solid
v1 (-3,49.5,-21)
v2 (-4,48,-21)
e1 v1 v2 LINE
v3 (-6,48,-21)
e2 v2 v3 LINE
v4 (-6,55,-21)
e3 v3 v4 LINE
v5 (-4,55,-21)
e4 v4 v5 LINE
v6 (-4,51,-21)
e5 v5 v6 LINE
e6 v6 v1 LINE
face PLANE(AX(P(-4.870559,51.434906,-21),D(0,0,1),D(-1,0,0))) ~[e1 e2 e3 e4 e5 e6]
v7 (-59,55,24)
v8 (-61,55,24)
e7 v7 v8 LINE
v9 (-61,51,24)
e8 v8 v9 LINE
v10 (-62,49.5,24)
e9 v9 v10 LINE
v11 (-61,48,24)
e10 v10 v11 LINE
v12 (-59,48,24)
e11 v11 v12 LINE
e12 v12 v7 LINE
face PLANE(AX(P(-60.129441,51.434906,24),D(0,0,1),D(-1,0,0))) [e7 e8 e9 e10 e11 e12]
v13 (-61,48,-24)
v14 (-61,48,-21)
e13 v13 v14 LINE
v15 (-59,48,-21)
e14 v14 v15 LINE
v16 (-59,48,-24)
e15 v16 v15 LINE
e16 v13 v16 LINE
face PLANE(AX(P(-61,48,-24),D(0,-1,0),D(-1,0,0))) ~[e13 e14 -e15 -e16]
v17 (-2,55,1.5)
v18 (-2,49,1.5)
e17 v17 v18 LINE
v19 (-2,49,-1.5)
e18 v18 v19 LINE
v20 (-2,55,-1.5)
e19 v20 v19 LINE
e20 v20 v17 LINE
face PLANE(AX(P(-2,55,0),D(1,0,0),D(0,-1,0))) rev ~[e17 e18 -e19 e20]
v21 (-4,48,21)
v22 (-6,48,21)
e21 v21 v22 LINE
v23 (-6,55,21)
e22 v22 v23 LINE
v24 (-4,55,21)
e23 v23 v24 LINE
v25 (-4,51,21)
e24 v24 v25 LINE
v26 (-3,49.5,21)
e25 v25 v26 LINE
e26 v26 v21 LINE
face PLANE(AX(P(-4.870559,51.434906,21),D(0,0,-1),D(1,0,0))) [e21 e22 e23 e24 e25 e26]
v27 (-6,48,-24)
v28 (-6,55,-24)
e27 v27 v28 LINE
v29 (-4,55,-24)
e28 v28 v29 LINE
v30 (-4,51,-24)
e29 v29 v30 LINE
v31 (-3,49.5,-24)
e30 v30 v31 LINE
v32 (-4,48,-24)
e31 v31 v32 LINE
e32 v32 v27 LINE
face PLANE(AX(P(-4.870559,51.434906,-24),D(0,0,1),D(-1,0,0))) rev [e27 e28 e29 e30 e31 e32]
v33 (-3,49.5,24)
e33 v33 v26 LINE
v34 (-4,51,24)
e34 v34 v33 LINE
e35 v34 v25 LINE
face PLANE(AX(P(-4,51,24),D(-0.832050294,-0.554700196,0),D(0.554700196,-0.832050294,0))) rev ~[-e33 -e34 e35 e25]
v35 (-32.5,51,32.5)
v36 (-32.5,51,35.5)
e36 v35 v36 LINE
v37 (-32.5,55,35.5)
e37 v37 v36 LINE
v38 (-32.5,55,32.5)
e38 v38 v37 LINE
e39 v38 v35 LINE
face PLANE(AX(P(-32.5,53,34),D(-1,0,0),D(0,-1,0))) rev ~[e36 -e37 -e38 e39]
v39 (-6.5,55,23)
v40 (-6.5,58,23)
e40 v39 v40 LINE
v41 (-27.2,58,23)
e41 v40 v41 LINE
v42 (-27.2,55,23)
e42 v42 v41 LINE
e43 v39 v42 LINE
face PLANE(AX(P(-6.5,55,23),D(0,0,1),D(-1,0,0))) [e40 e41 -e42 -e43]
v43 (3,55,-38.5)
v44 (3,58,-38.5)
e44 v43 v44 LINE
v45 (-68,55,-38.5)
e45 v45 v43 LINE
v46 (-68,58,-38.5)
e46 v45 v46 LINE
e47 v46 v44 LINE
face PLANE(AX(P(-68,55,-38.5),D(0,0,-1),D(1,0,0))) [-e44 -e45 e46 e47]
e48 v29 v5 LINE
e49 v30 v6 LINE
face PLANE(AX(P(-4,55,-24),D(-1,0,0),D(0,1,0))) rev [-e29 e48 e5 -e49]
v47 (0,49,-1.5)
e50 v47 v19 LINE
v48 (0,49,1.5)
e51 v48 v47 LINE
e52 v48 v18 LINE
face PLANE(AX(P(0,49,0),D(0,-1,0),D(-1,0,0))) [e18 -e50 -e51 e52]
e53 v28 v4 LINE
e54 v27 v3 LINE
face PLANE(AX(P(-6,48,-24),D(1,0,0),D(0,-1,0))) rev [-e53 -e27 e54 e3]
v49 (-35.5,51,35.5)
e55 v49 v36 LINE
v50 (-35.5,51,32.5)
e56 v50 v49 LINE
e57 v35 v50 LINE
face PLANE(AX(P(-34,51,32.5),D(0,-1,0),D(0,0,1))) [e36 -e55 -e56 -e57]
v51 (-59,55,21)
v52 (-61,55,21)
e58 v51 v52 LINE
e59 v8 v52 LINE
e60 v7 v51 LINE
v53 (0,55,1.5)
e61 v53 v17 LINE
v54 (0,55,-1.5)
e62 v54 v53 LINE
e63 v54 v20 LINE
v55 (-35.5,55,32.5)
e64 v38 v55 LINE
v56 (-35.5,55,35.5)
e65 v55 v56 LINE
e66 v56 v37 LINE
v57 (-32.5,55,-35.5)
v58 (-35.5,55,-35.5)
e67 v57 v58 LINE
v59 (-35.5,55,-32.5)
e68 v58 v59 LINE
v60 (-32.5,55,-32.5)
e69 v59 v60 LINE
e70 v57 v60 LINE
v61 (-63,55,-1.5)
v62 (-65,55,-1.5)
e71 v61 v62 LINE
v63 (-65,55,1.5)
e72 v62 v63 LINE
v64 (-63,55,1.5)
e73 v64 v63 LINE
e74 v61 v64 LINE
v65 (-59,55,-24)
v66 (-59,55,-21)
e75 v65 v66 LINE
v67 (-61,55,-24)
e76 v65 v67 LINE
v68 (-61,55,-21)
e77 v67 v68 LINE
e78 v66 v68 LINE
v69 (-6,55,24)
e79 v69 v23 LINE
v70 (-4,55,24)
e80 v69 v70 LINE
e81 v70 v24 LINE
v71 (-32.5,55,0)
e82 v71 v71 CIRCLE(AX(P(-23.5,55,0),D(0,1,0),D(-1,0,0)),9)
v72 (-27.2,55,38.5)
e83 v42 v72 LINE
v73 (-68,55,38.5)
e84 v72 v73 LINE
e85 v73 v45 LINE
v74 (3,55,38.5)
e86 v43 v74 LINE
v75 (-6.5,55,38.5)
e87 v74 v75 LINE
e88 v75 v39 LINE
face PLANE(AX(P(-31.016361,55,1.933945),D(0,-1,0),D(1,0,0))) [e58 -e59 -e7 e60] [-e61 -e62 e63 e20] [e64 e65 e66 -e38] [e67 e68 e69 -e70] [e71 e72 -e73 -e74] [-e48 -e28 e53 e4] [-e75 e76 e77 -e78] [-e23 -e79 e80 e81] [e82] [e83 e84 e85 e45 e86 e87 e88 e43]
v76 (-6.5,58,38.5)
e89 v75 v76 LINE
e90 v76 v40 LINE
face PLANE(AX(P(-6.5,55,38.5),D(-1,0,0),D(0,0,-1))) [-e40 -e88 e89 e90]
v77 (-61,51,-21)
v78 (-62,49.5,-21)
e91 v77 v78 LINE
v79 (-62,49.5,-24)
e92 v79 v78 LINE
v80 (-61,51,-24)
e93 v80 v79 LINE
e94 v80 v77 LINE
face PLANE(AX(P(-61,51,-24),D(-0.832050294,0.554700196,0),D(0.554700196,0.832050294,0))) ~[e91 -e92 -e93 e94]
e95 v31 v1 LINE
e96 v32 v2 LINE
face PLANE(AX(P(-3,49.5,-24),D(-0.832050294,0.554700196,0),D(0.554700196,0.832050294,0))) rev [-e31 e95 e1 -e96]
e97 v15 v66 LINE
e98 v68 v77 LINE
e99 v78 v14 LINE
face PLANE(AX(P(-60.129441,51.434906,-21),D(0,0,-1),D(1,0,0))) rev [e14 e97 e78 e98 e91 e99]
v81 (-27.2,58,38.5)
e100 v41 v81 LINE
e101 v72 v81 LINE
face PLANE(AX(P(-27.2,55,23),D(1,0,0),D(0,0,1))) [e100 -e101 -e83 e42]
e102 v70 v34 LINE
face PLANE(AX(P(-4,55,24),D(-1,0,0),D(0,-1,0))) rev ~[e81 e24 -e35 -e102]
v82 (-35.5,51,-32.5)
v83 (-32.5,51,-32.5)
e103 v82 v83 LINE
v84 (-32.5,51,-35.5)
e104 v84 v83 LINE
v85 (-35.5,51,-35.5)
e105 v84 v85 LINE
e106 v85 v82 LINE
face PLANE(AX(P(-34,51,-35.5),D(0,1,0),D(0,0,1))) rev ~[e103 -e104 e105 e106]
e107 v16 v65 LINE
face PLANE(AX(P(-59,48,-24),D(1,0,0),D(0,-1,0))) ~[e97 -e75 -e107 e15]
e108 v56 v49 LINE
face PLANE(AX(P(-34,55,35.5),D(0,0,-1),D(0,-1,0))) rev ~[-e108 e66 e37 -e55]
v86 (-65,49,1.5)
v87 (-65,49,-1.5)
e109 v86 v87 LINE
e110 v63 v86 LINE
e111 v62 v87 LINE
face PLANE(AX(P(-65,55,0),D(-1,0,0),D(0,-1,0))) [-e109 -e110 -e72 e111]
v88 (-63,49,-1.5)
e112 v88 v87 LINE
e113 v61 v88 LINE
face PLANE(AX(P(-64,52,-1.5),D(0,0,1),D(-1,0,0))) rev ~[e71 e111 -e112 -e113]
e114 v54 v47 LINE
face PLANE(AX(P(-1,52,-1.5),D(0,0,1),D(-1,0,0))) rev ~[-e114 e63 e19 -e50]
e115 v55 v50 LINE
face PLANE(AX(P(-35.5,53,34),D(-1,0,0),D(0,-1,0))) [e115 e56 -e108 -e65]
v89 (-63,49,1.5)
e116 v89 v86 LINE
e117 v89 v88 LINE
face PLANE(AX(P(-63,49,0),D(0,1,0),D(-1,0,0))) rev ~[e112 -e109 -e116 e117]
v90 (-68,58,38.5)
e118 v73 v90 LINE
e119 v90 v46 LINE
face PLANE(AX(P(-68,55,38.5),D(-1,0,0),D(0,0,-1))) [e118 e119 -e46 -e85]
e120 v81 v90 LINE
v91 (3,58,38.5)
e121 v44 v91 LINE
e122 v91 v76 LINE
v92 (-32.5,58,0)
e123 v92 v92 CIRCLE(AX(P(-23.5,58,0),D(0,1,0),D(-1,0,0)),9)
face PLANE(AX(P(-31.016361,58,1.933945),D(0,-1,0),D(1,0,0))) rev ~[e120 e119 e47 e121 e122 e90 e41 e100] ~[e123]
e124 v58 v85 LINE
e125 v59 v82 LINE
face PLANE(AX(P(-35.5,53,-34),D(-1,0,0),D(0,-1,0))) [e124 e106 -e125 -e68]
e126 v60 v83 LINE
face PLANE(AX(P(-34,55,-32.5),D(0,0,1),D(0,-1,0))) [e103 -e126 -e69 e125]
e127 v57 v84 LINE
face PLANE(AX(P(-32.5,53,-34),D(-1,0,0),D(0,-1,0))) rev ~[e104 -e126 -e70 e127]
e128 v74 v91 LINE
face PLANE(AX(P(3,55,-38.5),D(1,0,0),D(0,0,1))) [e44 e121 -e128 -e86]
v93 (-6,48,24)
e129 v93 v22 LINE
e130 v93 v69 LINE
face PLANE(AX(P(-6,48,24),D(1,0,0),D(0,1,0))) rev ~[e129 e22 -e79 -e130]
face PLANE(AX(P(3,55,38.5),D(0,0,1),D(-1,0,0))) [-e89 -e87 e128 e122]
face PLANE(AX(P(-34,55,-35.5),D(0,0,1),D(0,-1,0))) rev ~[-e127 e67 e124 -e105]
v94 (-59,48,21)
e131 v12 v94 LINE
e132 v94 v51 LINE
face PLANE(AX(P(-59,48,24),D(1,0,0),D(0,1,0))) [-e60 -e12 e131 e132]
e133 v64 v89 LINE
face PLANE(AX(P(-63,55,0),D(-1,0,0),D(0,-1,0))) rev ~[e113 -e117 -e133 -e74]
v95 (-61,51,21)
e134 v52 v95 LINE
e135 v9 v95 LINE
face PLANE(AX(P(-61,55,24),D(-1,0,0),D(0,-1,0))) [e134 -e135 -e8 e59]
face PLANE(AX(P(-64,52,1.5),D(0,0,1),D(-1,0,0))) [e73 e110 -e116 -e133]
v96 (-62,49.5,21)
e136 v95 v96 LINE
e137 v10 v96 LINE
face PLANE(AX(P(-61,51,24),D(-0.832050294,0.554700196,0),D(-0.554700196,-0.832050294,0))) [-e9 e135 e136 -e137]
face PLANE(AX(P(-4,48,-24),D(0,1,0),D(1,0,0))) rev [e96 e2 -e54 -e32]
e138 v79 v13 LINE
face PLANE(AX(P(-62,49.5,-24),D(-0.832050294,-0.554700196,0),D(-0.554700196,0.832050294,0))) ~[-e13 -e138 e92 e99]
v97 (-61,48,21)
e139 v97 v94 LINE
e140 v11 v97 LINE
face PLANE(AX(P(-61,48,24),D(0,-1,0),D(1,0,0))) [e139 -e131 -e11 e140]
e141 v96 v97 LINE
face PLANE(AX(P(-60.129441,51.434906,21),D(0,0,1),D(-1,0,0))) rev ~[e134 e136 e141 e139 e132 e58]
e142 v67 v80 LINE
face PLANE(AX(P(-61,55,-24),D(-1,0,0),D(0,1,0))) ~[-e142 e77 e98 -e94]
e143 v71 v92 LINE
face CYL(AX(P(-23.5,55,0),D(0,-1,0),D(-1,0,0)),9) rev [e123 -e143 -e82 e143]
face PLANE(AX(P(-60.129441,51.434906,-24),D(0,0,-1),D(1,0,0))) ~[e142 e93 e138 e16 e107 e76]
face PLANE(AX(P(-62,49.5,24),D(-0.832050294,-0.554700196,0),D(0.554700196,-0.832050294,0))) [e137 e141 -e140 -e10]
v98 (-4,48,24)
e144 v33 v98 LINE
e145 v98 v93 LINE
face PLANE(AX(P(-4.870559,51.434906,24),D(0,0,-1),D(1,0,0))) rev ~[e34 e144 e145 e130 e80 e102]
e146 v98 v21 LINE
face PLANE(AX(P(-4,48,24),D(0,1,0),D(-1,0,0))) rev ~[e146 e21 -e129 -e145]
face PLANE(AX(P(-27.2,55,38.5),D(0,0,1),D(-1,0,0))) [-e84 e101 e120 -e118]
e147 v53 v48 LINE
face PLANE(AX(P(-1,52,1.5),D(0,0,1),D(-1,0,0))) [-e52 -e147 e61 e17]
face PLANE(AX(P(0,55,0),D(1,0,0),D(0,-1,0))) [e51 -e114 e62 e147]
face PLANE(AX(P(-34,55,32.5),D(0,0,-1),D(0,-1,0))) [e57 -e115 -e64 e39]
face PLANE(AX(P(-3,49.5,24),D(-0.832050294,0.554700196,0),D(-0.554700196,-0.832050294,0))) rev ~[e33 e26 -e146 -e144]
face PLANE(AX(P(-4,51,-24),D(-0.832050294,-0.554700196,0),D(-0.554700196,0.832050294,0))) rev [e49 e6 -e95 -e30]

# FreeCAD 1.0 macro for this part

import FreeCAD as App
import Part
import Sketcher
Q = App.Units.Quantity

doc = App.newDocument("Part")
body = doc.addObject("PartDesign::Body", "Body")

# Sketch on XZ plane
sketch1 = body.newObject("Sketcher::SketchObject", "Sketch")
sketch1.AttachmentSupport = (doc.getObject("XZ_Plane"), [""])
sketch1.MapMode = "FlatFace"
sketch1.addGeometry(Part.LineSegment(App.Vector(68, -38.5, 0), App.Vector(68, 38.5, 0)), False)
sketch1.addGeometry(Part.LineSegment(App.Vector(68, 38.5, 0), App.Vector(27.2, 38.5, 0)), False)
sketch1.addGeometry(Part.LineSegment(App.Vector(27.2, 38.5, 0), App.Vector(27.2, 23, 0)), False)
sketch1.addGeometry(Part.LineSegment(App.Vector(27.2, 23, 0), App.Vector(6.5, 23, 0)), False)
sketch1.addGeometry(Part.LineSegment(App.Vector(6.5, 23, 0), App.Vector(6.5, 38.5, 0)), False)
sketch1.addGeometry(Part.LineSegment(App.Vector(6.5, 38.5, 0), App.Vector(-3, 38.5, 0)), False)
sketch1.addGeometry(Part.LineSegment(App.Vector(-3, 38.5, 0), App.Vector(-3, -38.5, 0)), False)
sketch1.addGeometry(Part.LineSegment(App.Vector(-3, -38.5, 0), App.Vector(68, -38.5, 0)), False)
sketch1.addGeometry(Part.Circle(App.Vector(23.5, 0, 0), App.Vector(0, 0, 1), 9), False)
sketch1.addConstraint(Sketcher.Constraint("Coincident", 0, 2, 1, 1))
sketch1.addConstraint(Sketcher.Constraint("Coincident", 1, 2, 2, 1))
sketch1.addConstraint(Sketcher.Constraint("Coincident", 2, 2, 3, 1))
sketch1.addConstraint(Sketcher.Constraint("Coincident", 3, 2, 4, 1))
sketch1.addConstraint(Sketcher.Constraint("Coincident", 4, 2, 5, 1))
sketch1.addConstraint(Sketcher.Constraint("Coincident", 5, 2, 6, 1))
sketch1.addConstraint(Sketcher.Constraint("Coincident", 6, 2, 7, 1))
sketch1.addConstraint(Sketcher.Constraint("Coincident", 7, 2, 0, 1))
sketch1.addConstraint(Sketcher.Constraint("Vertical", 0))
sketch1.addConstraint(Sketcher.Constraint("Horizontal", 1))
sketch1.addConstraint(Sketcher.Constraint("Vertical", 2))
sketch1.addConstraint(Sketcher.Constraint("Horizontal", 3))
sketch1.addConstraint(Sketcher.Constraint("Vertical", 4))
sketch1.addConstraint(Sketcher.Constraint("Horizontal", 5))
sketch1.addConstraint(Sketcher.Constraint("Vertical", 6))
sketch1.addConstraint(Sketcher.Constraint("Horizontal", 7))
sketch1.addConstraint(Sketcher.Constraint("PointOnObject", 8, 3, -1))
sketch1.addConstraint(Sketcher.Constraint("Horizontal", 1, 2, 4, 2))
sketch1.addConstraint(Sketcher.Constraint("Diameter", 8, Q("18 mm")))
sketch1.addConstraint(Sketcher.Constraint("DistanceX", 7, 1, 7, 2, Q("71 mm")))
sketch1.addConstraint(Sketcher.Constraint("DistanceY", 0, 1, 0, 2, Q("77 mm")))
sketch1.addConstraint(Sketcher.Constraint("DistanceX", 1, 2, 1, 1, Q("40.8 mm")))
sketch1.addConstraint(Sketcher.Constraint("DistanceX", 3, 2, 3, 1, Q("20.7 mm")))
sketch1.addConstraint(Sketcher.Constraint("DistanceY", 2, 2, 2, 1, Q("15.5 mm")))
sketch1.addConstraint(Sketcher.Constraint("DistanceX", -1, 1, 0, 2, Q("68 mm")))
sketch1.addConstraint(Sketcher.Constraint("DistanceY", -1, 1, 2, 2, Q("23 mm")))
sketch1.addConstraint(Sketcher.Constraint("DistanceX", 3, 2, 8, 3, Q("17 mm")))
pad1 = body.newObject("PartDesign::Pad", "Pad")
pad1.Profile = sketch1
pad1.Length = 3

# Sketch on XY plane
sketch2 = body.newObject("Sketcher::SketchObject", "Sketch001")
sketch2.AttachmentSupport = (doc.getObject("XY_Plane"), [""])
sketch2.MapMode = "FlatFace"
sketch2.AttachmentOffset = App.Placement(App.Vector(0, 0, 24), App.Rotation())
sketch2.addGeometry(Part.LineSegment(App.Vector(61, 0, 0), App.Vector(61, 4, 0)), False)
sketch2.addGeometry(Part.LineSegment(App.Vector(61, 4, 0), App.Vector(62, 5.5, 0)), False)
sketch2.addGeometry(Part.LineSegment(App.Vector(62, 5.5, 0), App.Vector(61, 7, 0)), False)
sketch2.addGeometry(Part.LineSegment(App.Vector(61, 7, 0), App.Vector(59, 7, 0)), False)
sketch2.addGeometry(Part.LineSegment(App.Vector(59, 7, 0), App.Vector(59, 0, 0)), False)
sketch2.addGeometry(Part.LineSegment(App.Vector(59, 0, 0), App.Vector(61, 0, 0)), False)
sketch2.addGeometry(Part.LineSegment(App.Vector(4, 4, 0), App.Vector(4, 0, 0)), False)
sketch2.addGeometry(Part.LineSegment(App.Vector(4, 0, 0), App.Vector(6, 0, 0)), False)
sketch2.addGeometry(Part.LineSegment(App.Vector(6, 0, 0), App.Vector(6, 7, 0)), False)
sketch2.addGeometry(Part.LineSegment(App.Vector(6, 7, 0), App.Vector(4, 7, 0)), False)
sketch2.addGeometry(Part.LineSegment(App.Vector(4, 7, 0), App.Vector(3, 5.5, 0)), False)
sketch2.addGeometry(Part.LineSegment(App.Vector(3, 5.5, 0), App.Vector(4, 4, 0)), False)
sketch2.addConstraint(Sketcher.Constraint("Coincident", 0, 2, 1, 1))
sketch2.addConstraint(Sketcher.Constraint("Coincident", 1, 2, 2, 1))
sketch2.addConstraint(Sketcher.Constraint("Coincident", 2, 2, 3, 1))
sketch2.addConstraint(Sketcher.Constraint("Coincident", 3, 2, 4, 1))
sketch2.addConstraint(Sketcher.Constraint("Coincident", 4, 2, 5, 1))
sketch2.addConstraint(Sketcher.Constraint("Coincident", 5, 2, 0, 1))
sketch2.addConstraint(Sketcher.Constraint("Coincident", 6, 2, 7, 1))
sketch2.addConstraint(Sketcher.Constraint("Coincident", 7, 2, 8, 1))
sketch2.addConstraint(Sketcher.Constraint("Coincident", 8, 2, 9, 1))
sketch2.addConstraint(Sketcher.Constraint("Coincident", 9, 2, 10, 1))
sketch2.addConstraint(Sketcher.Constraint("Coincident", 10, 2, 11, 1))
sketch2.addConstraint(Sketcher.Constraint("Coincident", 11, 2, 6, 1))
sketch2.addConstraint(Sketcher.Constraint("Vertical", 0))
sketch2.addConstraint(Sketcher.Constraint("Horizontal", 3))
sketch2.addConstraint(Sketcher.Constraint("Vertical", 4))
sketch2.addConstraint(Sketcher.Constraint("Horizontal", 5))
sketch2.addConstraint(Sketcher.Constraint("Vertical", 6))
sketch2.addConstraint(Sketcher.Constraint("Horizontal", 7))
sketch2.addConstraint(Sketcher.Constraint("Vertical", 8))
sketch2.addConstraint(Sketcher.Constraint("Horizontal", 9))
sketch2.addConstraint(Sketcher.Constraint("PointOnObject", 4, 2, -1))
sketch2.addConstraint(Sketcher.Constraint("PointOnObject", 6, 2, -1))
sketch2.addConstraint(Sketcher.Constraint("Parallel", 1, 10))
sketch2.addConstraint(Sketcher.Constraint("Parallel", 2, 11))
sketch2.addConstraint(Sketcher.Constraint("Horizontal", 3, 2, 8, 2))
sketch2.addConstraint(Sketcher.Constraint("Horizontal", 1, 2, 10, 2))
sketch2.addConstraint(Sketcher.Constraint("Horizontal", 0, 2, 11, 2))
sketch2.addConstraint(Sketcher.Constraint("Vertical", 0, 2, 2, 2))
sketch2.addConstraint(Sketcher.Constraint("Vertical", 6, 2, 9, 2))
sketch2.addConstraint(Sketcher.Constraint("Equal", 5, 7))
sketch2.addConstraint(Sketcher.Constraint("DistanceX", 3, 2, 3, 1, Q("2 mm")))
sketch2.addConstraint(Sketcher.Constraint("DistanceY", 0, 1, 0, 2, Q("4 mm")))
sketch2.addConstraint(Sketcher.Constraint("DistanceY", 4, 2, 4, 1, Q("7 mm")))
sketch2.addConstraint(Sketcher.Constraint("DistanceX", -1, 1, 0, 2, Q("61 mm")))
sketch2.addConstraint(Sketcher.Constraint("DistanceX", -1, 1, 1, 2, Q("62 mm")))
sketch2.addConstraint(Sketcher.Constraint("DistanceX", -1, 1, 6, 2, Q("4 mm")))
pad2 = body.newObject("PartDesign::Pad", "Pad001")
pad2.Profile = sketch2
pad2.Length = 3
pad2.Reversed = True
doc.recompute()

mirrored = body.newObject("PartDesign::Mirrored", "Mirrored")
mirrored.Originals = [pad2]
mirrored.MirrorPlane = (doc.getObject("XY_Plane"), [""])
body.Tip = mirrored

# Sketch on XY plane
sketch3 = body.newObject("Sketcher::SketchObject", "Sketch002")
sketch3.AttachmentSupport = (doc.getObject("XY_Plane"), [""])
sketch3.MapMode = "FlatFace"
sketch3.addGeometry(Part.LineSegment(App.Vector(0, 6, 0), App.Vector(0, 0, 0)), False)
sketch3.addGeometry(Part.LineSegment(App.Vector(0, 0, 0), App.Vector(2, 0, 0)), False)
sketch3.addGeometry(Part.LineSegment(App.Vector(2, 0, 0), App.Vector(2, 6, 0)), False)
sketch3.addGeometry(Part.LineSegment(App.Vector(2, 6, 0), App.Vector(0, 6, 0)), False)
sketch3.addGeometry(Part.LineSegment(App.Vector(63, 6, 0), App.Vector(63, 0, 0)), False)
sketch3.addGeometry(Part.LineSegment(App.Vector(63, 0, 0), App.Vector(65, 0, 0)), False)
sketch3.addGeometry(Part.LineSegment(App.Vector(65, 0, 0), App.Vector(65, 6, 0)), False)
sketch3.addGeometry(Part.LineSegment(App.Vector(65, 6, 0), App.Vector(63, 6, 0)), False)
sketch3.addConstraint(Sketcher.Constraint("Coincident", 0, 2, 1, 1))
sketch3.addConstraint(Sketcher.Constraint("Coincident", 1, 2, 2, 1))
sketch3.addConstraint(Sketcher.Constraint("Coincident", 2, 2, 3, 1))
sketch3.addConstraint(Sketcher.Constraint("Coincident", 3, 2, 0, 1))
sketch3.addConstraint(Sketcher.Constraint("Coincident", 4, 2, 5, 1))
sketch3.addConstraint(Sketcher.Constraint("Coincident", 5, 2, 6, 1))
sketch3.addConstraint(Sketcher.Constraint("Coincident", 6, 2, 7, 1))
sketch3.addConstraint(Sketcher.Constraint("Coincident", 7, 2, 4, 1))
sketch3.addConstraint(Sketcher.Constraint("Vertical", 0))
sketch3.addConstraint(Sketcher.Constraint("Horizontal", 1))
sketch3.addConstraint(Sketcher.Constraint("Vertical", 2))
sketch3.addConstraint(Sketcher.Constraint("Horizontal", 3))
sketch3.addConstraint(Sketcher.Constraint("Vertical", 4))
sketch3.addConstraint(Sketcher.Constraint("Horizontal", 5))
sketch3.addConstraint(Sketcher.Constraint("Vertical", 6))
sketch3.addConstraint(Sketcher.Constraint("Horizontal", 7))
sketch3.addConstraint(Sketcher.Constraint("Coincident", 0, 2, -1, 1))
sketch3.addConstraint(Sketcher.Constraint("PointOnObject", 4, 2, -1))
sketch3.addConstraint(Sketcher.Constraint("Horizontal", 3, 2, 6, 2))
sketch3.addConstraint(Sketcher.Constraint("Equal", 3, 5))
sketch3.addConstraint(Sketcher.Constraint("DistanceX", 1, 1, 1, 2, Q("2 mm")))
sketch3.addConstraint(Sketcher.Constraint("DistanceY", 0, 2, 0, 1, Q("6 mm")))
sketch3.addConstraint(Sketcher.Constraint("DistanceX", -1, 1, 4, 2, Q("63 mm")))
pad3 = body.newObject("PartDesign::Pad", "Pad002")
pad3.Profile = sketch3
pad3.Length = 3
pad3.Midplane = True

# Sketch on YZ plane
sketch4 = body.newObject("Sketcher::SketchObject", "Sketch003")
sketch4.AttachmentSupport = (doc.getObject("YZ_Plane"), [""])
sketch4.MapMode = "FlatFace"
sketch4.AttachmentOffset = App.Placement(App.Vector(0, 0, 34), App.Rotation())
sketch4.addGeometry(Part.LineSegment(App.Vector(0, -32.5, 0), App.Vector(0, -35.5, 0)), False)
sketch4.addGeometry(Part.LineSegment(App.Vector(0, -35.5, 0), App.Vector(4, -35.5, 0)), False)
sketch4.addGeometry(Part.LineSegment(App.Vector(4, -35.5, 0), App.Vector(4, -32.5, 0)), False)
sketch4.addGeometry(Part.LineSegment(App.Vector(4, -32.5, 0), App.Vector(0, -32.5, 0)), False)
sketch4.addGeometry(Part.LineSegment(App.Vector(0, 35.5, 0), App.Vector(0, 32.5, 0)), False)
sketch4.addGeometry(Part.LineSegment(App.Vector(0, 32.5, 0), App.Vector(4, 32.5, 0)), False)
sketch4.addGeometry(Part.LineSegment(App.Vector(4, 32.5, 0), App.Vector(4, 35.5, 0)), False)
sketch4.addGeometry(Part.LineSegment(App.Vector(4, 35.5, 0), App.Vector(0, 35.5, 0)), False)
sketch4.addConstraint(Sketcher.Constraint("Coincident", 0, 2, 1, 1))
sketch4.addConstraint(Sketcher.Constraint("Coincident", 1, 2, 2, 1))
sketch4.addConstraint(Sketcher.Constraint("Coincident", 2, 2, 3, 1))
sketch4.addConstraint(Sketcher.Constraint("Coincident", 3, 2, 0, 1))
sketch4.addConstraint(Sketcher.Constraint("Coincident", 4, 2, 5, 1))
sketch4.addConstraint(Sketcher.Constraint("Coincident", 5, 2, 6, 1))
sketch4.addConstraint(Sketcher.Constraint("Coincident", 6, 2, 7, 1))
sketch4.addConstraint(Sketcher.Constraint("Coincident", 7, 2, 4, 1))
sketch4.addConstraint(Sketcher.Constraint("Vertical", 0))
sketch4.addConstraint(Sketcher.Constraint("Horizontal", 1))
sketch4.addConstraint(Sketcher.Constraint("Vertical", 2))
sketch4.addConstraint(Sketcher.Constraint("Horizontal", 3))
sketch4.addConstraint(Sketcher.Constraint("Vertical", 4))
sketch4.addConstraint(Sketcher.Constraint("Horizontal", 5))
sketch4.addConstraint(Sketcher.Constraint("Vertical", 6))
sketch4.addConstraint(Sketcher.Constraint("Horizontal", 7))
sketch4.addConstraint(Sketcher.Constraint("Symmetric", 3, 2, 4, 2, -1, 1))
sketch4.addConstraint(Sketcher.Constraint("Symmetric", 1, 2, 6, 2, -1))
sketch4.addConstraint(Sketcher.Constraint("PointOnObject", 0, 2, -2))
sketch4.addConstraint(Sketcher.Constraint("DistanceX", 1, 1, 1, 2, Q("4 mm")))
sketch4.addConstraint(Sketcher.Constraint("DistanceY", 0, 2, 0, 1, Q("3 mm")))
sketch4.addConstraint(Sketcher.Constraint("DistanceY", 3, 2, 4, 2, Q("65 mm")))
pad4 = body.newObject("PartDesign::Pad", "Pad003")
pad4.Profile = sketch4
pad4.Length = 3
pad4.Midplane = True
body2 = doc.addObject("PartDesign::Body", "Body001")
doc.recompute()

body.Placement = App.Placement(App.Vector(0, 55, 0), App.Rotation(App.Vector(0, 0, 1), 180))
boolean = body2.newObject("PartDesign::Boolean", "Boolean")
boolean.Type = "Fuse"
boolean.addObjects([body])

doc.recompute()
